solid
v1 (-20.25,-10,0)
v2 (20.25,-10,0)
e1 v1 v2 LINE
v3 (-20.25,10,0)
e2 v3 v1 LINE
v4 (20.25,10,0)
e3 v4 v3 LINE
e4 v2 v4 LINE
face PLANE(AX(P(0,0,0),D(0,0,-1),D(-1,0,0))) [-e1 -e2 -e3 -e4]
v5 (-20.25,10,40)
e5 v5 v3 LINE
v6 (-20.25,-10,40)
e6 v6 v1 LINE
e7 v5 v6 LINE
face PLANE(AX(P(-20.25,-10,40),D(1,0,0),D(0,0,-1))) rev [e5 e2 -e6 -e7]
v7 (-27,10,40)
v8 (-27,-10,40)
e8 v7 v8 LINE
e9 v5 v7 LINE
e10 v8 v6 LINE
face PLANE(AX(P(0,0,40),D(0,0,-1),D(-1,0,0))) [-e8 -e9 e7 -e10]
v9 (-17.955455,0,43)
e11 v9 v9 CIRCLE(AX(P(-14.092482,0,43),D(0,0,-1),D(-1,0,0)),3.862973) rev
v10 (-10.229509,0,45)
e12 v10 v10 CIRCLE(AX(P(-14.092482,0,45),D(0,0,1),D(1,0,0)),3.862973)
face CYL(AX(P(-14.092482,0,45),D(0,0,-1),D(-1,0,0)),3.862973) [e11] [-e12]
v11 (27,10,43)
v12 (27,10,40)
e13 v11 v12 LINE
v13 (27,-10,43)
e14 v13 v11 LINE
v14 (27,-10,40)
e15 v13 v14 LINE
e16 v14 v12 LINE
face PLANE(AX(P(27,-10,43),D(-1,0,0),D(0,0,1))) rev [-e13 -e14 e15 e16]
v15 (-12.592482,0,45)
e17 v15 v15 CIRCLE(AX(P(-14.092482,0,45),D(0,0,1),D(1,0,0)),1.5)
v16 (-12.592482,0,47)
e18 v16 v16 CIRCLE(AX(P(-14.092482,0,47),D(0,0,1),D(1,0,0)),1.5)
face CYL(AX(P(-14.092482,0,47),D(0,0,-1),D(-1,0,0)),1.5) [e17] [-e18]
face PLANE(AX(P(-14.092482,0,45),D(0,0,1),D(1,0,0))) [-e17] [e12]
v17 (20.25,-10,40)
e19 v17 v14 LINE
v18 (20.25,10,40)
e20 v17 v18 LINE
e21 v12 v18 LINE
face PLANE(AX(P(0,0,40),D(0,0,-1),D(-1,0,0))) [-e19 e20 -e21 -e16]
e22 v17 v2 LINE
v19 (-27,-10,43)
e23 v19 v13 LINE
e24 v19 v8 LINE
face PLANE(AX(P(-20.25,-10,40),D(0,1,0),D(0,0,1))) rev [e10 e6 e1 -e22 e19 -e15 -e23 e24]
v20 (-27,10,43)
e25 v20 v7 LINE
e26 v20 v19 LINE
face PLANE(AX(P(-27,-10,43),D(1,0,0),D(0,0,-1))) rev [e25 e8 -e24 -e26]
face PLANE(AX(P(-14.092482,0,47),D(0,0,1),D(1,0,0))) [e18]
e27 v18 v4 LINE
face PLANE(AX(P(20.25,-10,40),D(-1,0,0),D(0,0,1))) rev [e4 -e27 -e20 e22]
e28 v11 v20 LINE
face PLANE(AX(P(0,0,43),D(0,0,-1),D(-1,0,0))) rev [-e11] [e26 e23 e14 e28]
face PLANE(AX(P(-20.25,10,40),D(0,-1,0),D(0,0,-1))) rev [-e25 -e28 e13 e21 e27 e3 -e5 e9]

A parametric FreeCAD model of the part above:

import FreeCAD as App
import Part
import Sketcher
from FreeCAD import Vector

doc = App.newDocument("Part")
body = doc.addObject("PartDesign::Body", "Body")

# Sketch on XY plane
sketch1 = doc.addObject("Sketcher::SketchObject", "Sketch")
body.addObject(sketch1)
sketch1.AttachmentSupport = (doc.XY_Plane, [""])
sketch1.MapMode = "FlatFace"
sketch1.addGeometry(Part.LineSegment(Vector(-20.25, 10, 0), Vector(-20.25, -10, 0)), False)
sketch1.addGeometry(Part.LineSegment(Vector(-20.25, -10, 0), Vector(20.25, -10, 0)), False)
sketch1.addGeometry(Part.LineSegment(Vector(20.25, -10, 0), Vector(20.25, 10, 0)), False)
sketch1.addGeometry(Part.LineSegment(Vector(20.25, 10, 0), Vector(-20.25, 10, 0)), False)
sketch1.addConstraint(Sketcher.Constraint("Coincident", 0, 2, 1, 1))
sketch1.addConstraint(Sketcher.Constraint("Coincident", 1, 2, 2, 1))
sketch1.addConstraint(Sketcher.Constraint("Coincident", 2, 2, 3, 1))
sketch1.addConstraint(Sketcher.Constraint("Coincident", 3, 2, 0, 1))
sketch1.addConstraint(Sketcher.Constraint("Vertical", 0))
sketch1.addConstraint(Sketcher.Constraint("Horizontal", 1))
sketch1.addConstraint(Sketcher.Constraint("Vertical", 2))
sketch1.addConstraint(Sketcher.Constraint("Horizontal", 3))
sketch1.addConstraint(Sketcher.Constraint("Symmetric", 0, 2, 2, 2, -1, 1))
sketch1.addConstraint(Sketcher.Constraint("DistanceY", 0, 2, 0, 1, 20.0))
sketch1.addConstraint(Sketcher.Constraint("DistanceX", 1, 1, 1, 2, 40.5))
pad1 = doc.addObject("PartDesign::Pad", "Pad")
body.addObject(pad1)
pad1.Profile = sketch1
pad1.Length = 40

# Sketch on XY plane
sketch2 = doc.addObject("Sketcher::SketchObject", "Sketch001")
body.addObject(sketch2)
sketch2.AttachmentSupport = (doc.XY_Plane, [""])
sketch2.MapMode = "FlatFace"
sketch2.AttachmentOffset = App.Placement(Vector(0, 0, 40), App.Rotation())
sketch2.addGeometry(Part.LineSegment(Vector(-27, 10, 0), Vector(-27, -10, 0)), False)
sketch2.addGeometry(Part.LineSegment(Vector(-27, -10, 0), Vector(27, -10, 0)), False)
sketch2.addGeometry(Part.LineSegment(Vector(27, -10, 0), Vector(27, 10, 0)), False)
sketch2.addGeometry(Part.LineSegment(Vector(27, 10, 0), Vector(-27, 10, 0)), False)
sketch2.addConstraint(Sketcher.Constraint("Coincident", 0, 2, 1, 1))
sketch2.addConstraint(Sketcher.Constraint("Coincident", 1, 2, 2, 1))
sketch2.addConstraint(Sketcher.Constraint("Coincident", 2, 2, 3, 1))
sketch2.addConstraint(Sketcher.Constraint("Coincident", 3, 2, 0, 1))
sketch2.addConstraint(Sketcher.Constraint("Vertical", 0))
sketch2.addConstraint(Sketcher.Constraint("Horizontal", 1))
sketch2.addConstraint(Sketcher.Constraint("Vertical", 2))
sketch2.addConstraint(Sketcher.Constraint("Horizontal", 3))
sketch2.addConstraint(Sketcher.Constraint("Symmetric", 0, 2, 2, 2, -1, 1))
sketch2.addConstraint(Sketcher.Constraint("DistanceX", 1, 1, 1, 2, 54.0))
sketch2.addConstraint(Sketcher.Constraint("DistanceY", 0, 2, 0, 1, 20.0))
pad2 = doc.addObject("PartDesign::Pad", "Pad001")
body.addObject(pad2)
pad2.Profile = sketch2
pad2.Length = 3

# Sketch on XY plane
sketch3 = doc.addObject("Sketcher::SketchObject", "Sketch002")
body.addObject(sketch3)
sketch3.AttachmentSupport = (doc.XY_Plane, [""])
sketch3.MapMode = "FlatFace"
sketch3.AttachmentOffset = App.Placement(Vector(0, 0, 43), App.Rotation())
sketch3.addGeometry(Part.Circle(Vector(-14.092482, 0, 0), Vector(0, 0, 1), 3.862973), False)
sketch3.addConstraint(Sketcher.Constraint("PointOnObject", 0, 3, -1))
sketch3.addConstraint(Sketcher.Constraint("Diameter", 0, 7.725947))
sketch3.addConstraint(Sketcher.Constraint("DistanceX", 0, 3, -1, 1, 14.092482))
pad3 = doc.addObject("PartDesign::Pad", "Pad002")
body.addObject(pad3)
pad3.Profile = sketch3
pad3.Length = 2

# Sketch on XY plane
sketch4 = doc.addObject("Sketcher::SketchObject", "Sketch003")
body.addObject(sketch4)
sketch4.AttachmentSupport = (doc.XY_Plane, [""])
sketch4.MapMode = "FlatFace"
sketch4.AttachmentOffset = App.Placement(Vector(0, 0, 45), App.Rotation())
sketch4.addGeometry(Part.Circle(Vector(-14.092482, 0, 0), Vector(0, 0, 1), 1.5), False)
sketch4.addConstraint(Sketcher.Constraint("PointOnObject", 0, 3, -1))
sketch4.addConstraint(Sketcher.Constraint("Diameter", 0, 3.0))
sketch4.addConstraint(Sketcher.Constraint("DistanceX", 0, 3, -1, 1, 14.092482))
pad4 = doc.addObject("PartDesign::Pad", "Pad003")
body.addObject(pad4)
pad4.Profile = sketch4
pad4.Length = 2

doc.recompute()
